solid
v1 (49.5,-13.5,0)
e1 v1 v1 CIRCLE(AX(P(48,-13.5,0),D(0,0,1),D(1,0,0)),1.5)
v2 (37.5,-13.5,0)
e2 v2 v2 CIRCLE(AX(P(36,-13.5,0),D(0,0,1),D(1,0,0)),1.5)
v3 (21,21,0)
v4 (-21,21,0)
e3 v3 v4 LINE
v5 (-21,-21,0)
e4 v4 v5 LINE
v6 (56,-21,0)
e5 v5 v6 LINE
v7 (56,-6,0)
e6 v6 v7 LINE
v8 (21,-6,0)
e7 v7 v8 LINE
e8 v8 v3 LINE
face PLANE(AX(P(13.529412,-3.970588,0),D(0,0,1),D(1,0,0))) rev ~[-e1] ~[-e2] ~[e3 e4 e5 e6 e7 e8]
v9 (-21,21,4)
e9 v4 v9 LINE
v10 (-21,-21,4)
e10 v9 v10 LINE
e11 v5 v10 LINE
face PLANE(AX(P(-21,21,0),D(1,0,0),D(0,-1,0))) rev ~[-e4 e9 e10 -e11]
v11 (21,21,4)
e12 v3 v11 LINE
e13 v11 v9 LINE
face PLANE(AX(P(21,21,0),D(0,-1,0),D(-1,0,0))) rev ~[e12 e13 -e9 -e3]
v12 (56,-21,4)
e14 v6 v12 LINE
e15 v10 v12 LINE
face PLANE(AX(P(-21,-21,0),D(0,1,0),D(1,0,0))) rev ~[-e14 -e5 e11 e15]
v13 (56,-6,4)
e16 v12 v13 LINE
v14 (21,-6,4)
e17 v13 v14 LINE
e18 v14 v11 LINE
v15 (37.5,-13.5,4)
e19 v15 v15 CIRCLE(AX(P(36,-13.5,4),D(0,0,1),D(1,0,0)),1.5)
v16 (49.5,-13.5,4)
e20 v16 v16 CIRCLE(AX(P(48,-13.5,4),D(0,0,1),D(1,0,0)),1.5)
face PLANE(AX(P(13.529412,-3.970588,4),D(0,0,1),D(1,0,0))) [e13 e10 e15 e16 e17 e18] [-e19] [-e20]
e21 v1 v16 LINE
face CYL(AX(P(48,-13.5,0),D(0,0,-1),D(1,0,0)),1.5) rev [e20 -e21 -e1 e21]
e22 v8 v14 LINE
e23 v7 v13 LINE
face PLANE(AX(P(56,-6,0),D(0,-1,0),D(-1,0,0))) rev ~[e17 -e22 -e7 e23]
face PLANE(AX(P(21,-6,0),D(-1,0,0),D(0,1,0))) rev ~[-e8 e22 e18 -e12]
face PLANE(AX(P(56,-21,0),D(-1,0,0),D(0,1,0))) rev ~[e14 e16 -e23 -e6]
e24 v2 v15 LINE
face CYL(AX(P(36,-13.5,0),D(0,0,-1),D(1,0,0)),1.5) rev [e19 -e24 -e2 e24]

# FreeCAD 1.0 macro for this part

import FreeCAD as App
import Part
import Sketcher
from FreeCAD import Vector


def add_polygon(sketch, points):
    """Adds a closed chain of lines whose ends are joined by coincident constraints."""
    first, n = sketch.GeometryCount, len(points)
    for a, b in zip(points, points[1:] + points[:1]):
        sketch.addGeometry(Part.LineSegment(App.Vector(*a, 0), App.Vector(*b, 0)), False)
    for i in range(n):
        sketch.addConstraint(Sketcher.Constraint("Coincident", first + i, 2, first + (i + 1) % n, 1))

doc = App.newDocument("Part")
body = doc.addObject("PartDesign::Body", "Body")

sketch1 = body.newObject("Sketcher::SketchObject", "Sketch")
sketch1.AttachmentSupport = (doc.getObject("XY_Plane"), [""])
sketch1.MapMode = "FlatFace"
add_polygon(sketch1, [(21, 21), (-21, 21), (-21, -21), (56, -21), (56, -6), (21, -6)])
sketch1.addGeometry(Part.Circle(Vector(36, -13.5, 0), Vector(0, 0, 1), 1.5), False)
sketch1.addGeometry(Part.Circle(Vector(48, -13.5, 0), Vector(0, 0, 1), 1.5), False)
sketch1.addConstraint([
    Sketcher.Constraint("Horizontal", 0),
    Sketcher.Constraint("Vertical", 1),
    Sketcher.Constraint("Horizontal", 2),
    Sketcher.Constraint("Vertical", 3),
    Sketcher.Constraint("Horizontal", 4),
    Sketcher.Constraint("Vertical", 5),
    Sketcher.Constraint("Equal", 6, 7),
    Sketcher.Constraint("Symmetric", 1, 2, 5, 2, -1, 1),
    Sketcher.Constraint("Horizontal", 6, 3, 7, 3),
    Sketcher.Constraint("Equal", 0, 1),
    Sketcher.Constraint("Diameter", 6, 3.0),
    Sketcher.Constraint("DistanceX", 0, 2, 0, 1, 42.0),
    Sketcher.Constraint("DistanceX", 2, 1, 2, 2, 77.0),
    Sketcher.Constraint("DistanceY", 3, 1, 3, 2, 15.0),
    Sketcher.Constraint("DistanceX", -1, 1, 6, 3, 36.0),
    Sketcher.Constraint("DistanceX", -1, 1, 7, 3, 48.0),
    Sketcher.Constraint("DistanceY", 6, 3, -1, 1, 13.5),
])
pad1 = body.newObject("PartDesign::Pad", "Pad")
pad1.Profile = sketch1
pad1.Length = 4

doc.recompute()
